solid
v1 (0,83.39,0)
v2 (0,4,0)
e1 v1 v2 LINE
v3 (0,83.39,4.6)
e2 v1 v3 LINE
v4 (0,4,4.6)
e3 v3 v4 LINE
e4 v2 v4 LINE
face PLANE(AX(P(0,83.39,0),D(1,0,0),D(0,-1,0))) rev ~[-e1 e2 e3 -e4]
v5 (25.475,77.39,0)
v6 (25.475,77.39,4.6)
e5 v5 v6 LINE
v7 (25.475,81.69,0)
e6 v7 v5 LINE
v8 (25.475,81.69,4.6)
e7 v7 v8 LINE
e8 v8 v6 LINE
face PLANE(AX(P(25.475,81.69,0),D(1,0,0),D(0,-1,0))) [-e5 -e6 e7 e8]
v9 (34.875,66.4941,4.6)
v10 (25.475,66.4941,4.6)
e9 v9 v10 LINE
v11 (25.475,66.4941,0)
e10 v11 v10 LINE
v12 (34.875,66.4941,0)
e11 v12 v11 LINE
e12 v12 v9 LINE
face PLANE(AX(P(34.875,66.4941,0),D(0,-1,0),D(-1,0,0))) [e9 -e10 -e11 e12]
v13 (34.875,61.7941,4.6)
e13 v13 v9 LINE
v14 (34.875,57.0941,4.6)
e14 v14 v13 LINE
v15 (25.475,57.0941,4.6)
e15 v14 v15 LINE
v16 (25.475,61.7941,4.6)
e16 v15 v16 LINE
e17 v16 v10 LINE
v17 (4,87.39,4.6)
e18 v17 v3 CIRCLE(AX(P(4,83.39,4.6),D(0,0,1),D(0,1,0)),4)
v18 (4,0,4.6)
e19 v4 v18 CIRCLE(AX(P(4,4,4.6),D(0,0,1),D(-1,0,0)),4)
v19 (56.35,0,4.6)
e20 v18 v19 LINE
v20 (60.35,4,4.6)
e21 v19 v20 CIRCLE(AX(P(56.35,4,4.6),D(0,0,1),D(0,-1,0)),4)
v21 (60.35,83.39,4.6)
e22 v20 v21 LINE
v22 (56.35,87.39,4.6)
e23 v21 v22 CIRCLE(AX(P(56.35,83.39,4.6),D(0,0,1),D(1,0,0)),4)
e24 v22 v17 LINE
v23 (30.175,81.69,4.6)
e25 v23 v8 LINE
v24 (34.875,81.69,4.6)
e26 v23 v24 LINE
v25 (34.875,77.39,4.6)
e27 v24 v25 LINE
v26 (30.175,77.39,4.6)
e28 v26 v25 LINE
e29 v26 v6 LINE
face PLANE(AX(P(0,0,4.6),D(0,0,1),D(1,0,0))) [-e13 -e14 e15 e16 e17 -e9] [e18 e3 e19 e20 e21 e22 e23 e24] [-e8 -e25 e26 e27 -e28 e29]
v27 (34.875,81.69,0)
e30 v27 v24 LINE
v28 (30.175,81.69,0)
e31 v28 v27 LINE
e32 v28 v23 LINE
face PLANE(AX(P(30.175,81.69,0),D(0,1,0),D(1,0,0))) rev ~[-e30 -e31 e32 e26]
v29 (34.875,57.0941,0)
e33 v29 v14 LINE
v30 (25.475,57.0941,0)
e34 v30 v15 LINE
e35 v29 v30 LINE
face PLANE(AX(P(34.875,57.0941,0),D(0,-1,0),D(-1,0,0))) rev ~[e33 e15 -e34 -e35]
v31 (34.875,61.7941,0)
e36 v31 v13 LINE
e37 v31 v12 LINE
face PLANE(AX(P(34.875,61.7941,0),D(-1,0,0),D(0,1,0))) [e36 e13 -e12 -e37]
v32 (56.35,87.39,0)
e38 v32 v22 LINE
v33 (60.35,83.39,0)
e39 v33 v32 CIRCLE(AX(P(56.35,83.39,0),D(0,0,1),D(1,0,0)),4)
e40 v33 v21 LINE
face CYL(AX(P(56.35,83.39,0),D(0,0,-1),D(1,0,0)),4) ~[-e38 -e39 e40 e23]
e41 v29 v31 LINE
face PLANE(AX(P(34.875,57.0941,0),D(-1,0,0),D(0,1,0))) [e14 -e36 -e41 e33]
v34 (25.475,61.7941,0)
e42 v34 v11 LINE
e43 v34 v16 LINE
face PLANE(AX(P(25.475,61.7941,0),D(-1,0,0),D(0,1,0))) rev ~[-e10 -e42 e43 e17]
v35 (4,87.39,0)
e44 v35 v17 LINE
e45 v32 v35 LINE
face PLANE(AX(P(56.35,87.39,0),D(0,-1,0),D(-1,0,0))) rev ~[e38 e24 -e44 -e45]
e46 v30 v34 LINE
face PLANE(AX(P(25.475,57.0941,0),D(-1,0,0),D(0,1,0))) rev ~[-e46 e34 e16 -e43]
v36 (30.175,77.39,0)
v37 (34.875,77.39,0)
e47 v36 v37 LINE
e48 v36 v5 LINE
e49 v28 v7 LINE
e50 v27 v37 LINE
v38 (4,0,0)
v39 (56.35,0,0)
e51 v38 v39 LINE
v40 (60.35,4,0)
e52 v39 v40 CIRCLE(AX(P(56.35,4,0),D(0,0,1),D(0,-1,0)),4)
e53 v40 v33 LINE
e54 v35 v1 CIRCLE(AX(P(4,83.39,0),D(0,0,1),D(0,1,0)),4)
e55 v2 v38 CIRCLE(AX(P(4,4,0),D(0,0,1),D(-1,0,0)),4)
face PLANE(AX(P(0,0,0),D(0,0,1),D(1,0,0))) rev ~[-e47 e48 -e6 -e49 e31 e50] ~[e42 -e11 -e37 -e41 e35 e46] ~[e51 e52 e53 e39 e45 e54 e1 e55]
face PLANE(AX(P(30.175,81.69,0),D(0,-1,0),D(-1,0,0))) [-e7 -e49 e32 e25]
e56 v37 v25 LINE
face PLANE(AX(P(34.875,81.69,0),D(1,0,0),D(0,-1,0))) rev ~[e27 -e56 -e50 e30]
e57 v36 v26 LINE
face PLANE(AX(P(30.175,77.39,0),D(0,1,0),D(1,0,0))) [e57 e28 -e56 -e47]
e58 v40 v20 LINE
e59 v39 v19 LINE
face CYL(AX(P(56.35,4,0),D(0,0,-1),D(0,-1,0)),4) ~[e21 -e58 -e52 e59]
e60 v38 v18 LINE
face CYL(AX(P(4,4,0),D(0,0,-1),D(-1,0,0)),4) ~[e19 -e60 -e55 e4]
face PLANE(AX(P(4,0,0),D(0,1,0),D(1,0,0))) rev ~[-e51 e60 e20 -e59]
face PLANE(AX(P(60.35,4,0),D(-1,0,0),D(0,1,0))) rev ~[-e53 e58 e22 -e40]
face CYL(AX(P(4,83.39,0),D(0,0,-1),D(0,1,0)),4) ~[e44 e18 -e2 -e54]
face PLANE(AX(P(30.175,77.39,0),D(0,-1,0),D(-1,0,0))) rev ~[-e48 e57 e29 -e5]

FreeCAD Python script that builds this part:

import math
import FreeCAD as App
import Part
import Sketcher
from FreeCAD import Vector
Q = App.Units.Quantity

doc = App.newDocument("Part")
body = doc.addObject("PartDesign::Body", "Body")

sketch1 = body.newObject("Sketcher::SketchObject", "Sketch")
sketch1.AttachmentSupport = (doc.getObject("XY_Plane"), [""])
sketch1.MapMode = "FlatFace"
sketch1.addGeometry(Part.ArcOfCircle(Part.Circle(Vector(4, 4, 0), Vector(0, 0, 1), 4), math.radians(180), math.radians(270)), False)
sketch1.addGeometry(Part.LineSegment(Vector(4, 0, 0), Vector(56.4, 0, 0)), False)
sketch1.addGeometry(Part.ArcOfCircle(Part.Circle(Vector(56.4, 4, 0), Vector(0, 0, 1), 4), math.radians(-90), math.radians(0)), False)
sketch1.addGeometry(Part.LineSegment(Vector(60.4, 4, 0), Vector(60.4, 83.4, 0)), False)
sketch1.addGeometry(Part.ArcOfCircle(Part.Circle(Vector(56.4, 83.4, 0), Vector(0, 0, 1), 4), math.radians(0), math.radians(90)), False)
sketch1.addGeometry(Part.LineSegment(Vector(56.4, 87.4, 0), Vector(4, 87.4, 0)), False)
sketch1.addGeometry(Part.ArcOfCircle(Part.Circle(Vector(4, 83.4, 0), Vector(0, 0, 1), 4), math.radians(90), math.radians(180)), False)
sketch1.addGeometry(Part.LineSegment(Vector(0, 83.4, 0), Vector(0, 4, 0)), False)
sketch1.addGeometry(Part.LineSegment(Vector(25.5, 66.5, 0), Vector(34.9, 66.5, 0)), False)
sketch1.addGeometry(Part.LineSegment(Vector(34.9, 66.5, 0), Vector(34.9, 57.1, 0)), False)
sketch1.addGeometry(Part.LineSegment(Vector(34.9, 57.1, 0), Vector(25.5, 57.1, 0)), False)
sketch1.addGeometry(Part.LineSegment(Vector(25.5, 57.1, 0), Vector(25.5, 66.5, 0)), False)
sketch1.addGeometry(Part.LineSegment(Vector(25.5, 81.7, 0), Vector(34.9, 81.7, 0)), False)
sketch1.addGeometry(Part.LineSegment(Vector(34.9, 81.7, 0), Vector(34.9, 77.4, 0)), False)
sketch1.addGeometry(Part.LineSegment(Vector(34.9, 77.4, 0), Vector(25.5, 77.4, 0)), False)
sketch1.addGeometry(Part.LineSegment(Vector(25.5, 77.4, 0), Vector(25.5, 81.7, 0)), False)
sketch1.addConstraint(Sketcher.Constraint("Tangent", 0, 2, 1, 1))
sketch1.addConstraint(Sketcher.Constraint("Tangent", 1, 2, 2, 1))
sketch1.addConstraint(Sketcher.Constraint("Tangent", 2, 2, 3, 1))
sketch1.addConstraint(Sketcher.Constraint("Tangent", 3, 2, 4, 1))
sketch1.addConstraint(Sketcher.Constraint("Tangent", 4, 2, 5, 1))
sketch1.addConstraint(Sketcher.Constraint("Tangent", 5, 2, 6, 1))
sketch1.addConstraint(Sketcher.Constraint("Tangent", 6, 2, 7, 1))
sketch1.addConstraint(Sketcher.Constraint("Tangent", 7, 2, 0, 1))
sketch1.addConstraint(Sketcher.Constraint("Coincident", 8, 2, 9, 1))
sketch1.addConstraint(Sketcher.Constraint("Coincident", 9, 2, 10, 1))
sketch1.addConstraint(Sketcher.Constraint("Coincident", 10, 2, 11, 1))
sketch1.addConstraint(Sketcher.Constraint("Coincident", 11, 2, 8, 1))
sketch1.addConstraint(Sketcher.Constraint("Coincident", 12, 2, 13, 1))
sketch1.addConstraint(Sketcher.Constraint("Coincident", 13, 2, 14, 1))
sketch1.addConstraint(Sketcher.Constraint("Coincident", 14, 2, 15, 1))
sketch1.addConstraint(Sketcher.Constraint("Coincident", 15, 2, 12, 1))
sketch1.addConstraint(Sketcher.Constraint("Horizontal", 1))
sketch1.addConstraint(Sketcher.Constraint("Vertical", 3))
sketch1.addConstraint(Sketcher.Constraint("Horizontal", 5))
sketch1.addConstraint(Sketcher.Constraint("Vertical", 7))
sketch1.addConstraint(Sketcher.Constraint("Horizontal", 8))
sketch1.addConstraint(Sketcher.Constraint("Vertical", 9))
sketch1.addConstraint(Sketcher.Constraint("Horizontal", 10))
sketch1.addConstraint(Sketcher.Constraint("Vertical", 11))
sketch1.addConstraint(Sketcher.Constraint("Horizontal", 12))
sketch1.addConstraint(Sketcher.Constraint("Vertical", 13))
sketch1.addConstraint(Sketcher.Constraint("Horizontal", 14))
sketch1.addConstraint(Sketcher.Constraint("Vertical", 15))
sketch1.addConstraint(Sketcher.Constraint("Equal", 0, 2))
sketch1.addConstraint(Sketcher.Constraint("Equal", 2, 4))
sketch1.addConstraint(Sketcher.Constraint("Equal", 4, 6))
sketch1.addConstraint(Sketcher.Constraint("PointOnObject", 0, 2, -1))
sketch1.addConstraint(Sketcher.Constraint("PointOnObject", 6, 2, -2))
sketch1.addConstraint(Sketcher.Constraint("Vertical", 9, 2, 12, 2))
sketch1.addConstraint(Sketcher.Constraint("Vertical", 11, 2, 14, 2))
sketch1.addConstraint(Sketcher.Constraint("Equal", 14, 9))
sketch1.addConstraint(Sketcher.Constraint("Radius", 0, Q("4 mm")))
sketch1.addConstraint(Sketcher.Constraint("DistanceY", 13, 2, 13, 1, Q("4.3 mm")))
sketch1.addConstraint(Sketcher.Constraint("DistanceX", -1, 1, 2, 2, Q("60.35 mm")))
sketch1.addConstraint(Sketcher.Constraint("DistanceY", -1, 1, 4, 2, Q("87.39 mm")))
sketch1.addConstraint(Sketcher.Constraint("DistanceX", 8, 1, 8, 2, Q("9.4 mm")))
sketch1.addConstraint(Sketcher.Constraint("DistanceY", 13, 2, 4, 3, Q("6 mm")))
sketch1.addConstraint(Sketcher.Constraint("DistanceX", -1, 1, 8, 2, Q("34.875 mm")))
sketch1.addConstraint(Sketcher.Constraint("DistanceY", -1, 1, 8, 2, Q("66.494 mm")))
pad1 = body.newObject("PartDesign::Pad", "Pad")
pad1.Profile = sketch1
pad1.Length = 4.6

doc.recompute()
